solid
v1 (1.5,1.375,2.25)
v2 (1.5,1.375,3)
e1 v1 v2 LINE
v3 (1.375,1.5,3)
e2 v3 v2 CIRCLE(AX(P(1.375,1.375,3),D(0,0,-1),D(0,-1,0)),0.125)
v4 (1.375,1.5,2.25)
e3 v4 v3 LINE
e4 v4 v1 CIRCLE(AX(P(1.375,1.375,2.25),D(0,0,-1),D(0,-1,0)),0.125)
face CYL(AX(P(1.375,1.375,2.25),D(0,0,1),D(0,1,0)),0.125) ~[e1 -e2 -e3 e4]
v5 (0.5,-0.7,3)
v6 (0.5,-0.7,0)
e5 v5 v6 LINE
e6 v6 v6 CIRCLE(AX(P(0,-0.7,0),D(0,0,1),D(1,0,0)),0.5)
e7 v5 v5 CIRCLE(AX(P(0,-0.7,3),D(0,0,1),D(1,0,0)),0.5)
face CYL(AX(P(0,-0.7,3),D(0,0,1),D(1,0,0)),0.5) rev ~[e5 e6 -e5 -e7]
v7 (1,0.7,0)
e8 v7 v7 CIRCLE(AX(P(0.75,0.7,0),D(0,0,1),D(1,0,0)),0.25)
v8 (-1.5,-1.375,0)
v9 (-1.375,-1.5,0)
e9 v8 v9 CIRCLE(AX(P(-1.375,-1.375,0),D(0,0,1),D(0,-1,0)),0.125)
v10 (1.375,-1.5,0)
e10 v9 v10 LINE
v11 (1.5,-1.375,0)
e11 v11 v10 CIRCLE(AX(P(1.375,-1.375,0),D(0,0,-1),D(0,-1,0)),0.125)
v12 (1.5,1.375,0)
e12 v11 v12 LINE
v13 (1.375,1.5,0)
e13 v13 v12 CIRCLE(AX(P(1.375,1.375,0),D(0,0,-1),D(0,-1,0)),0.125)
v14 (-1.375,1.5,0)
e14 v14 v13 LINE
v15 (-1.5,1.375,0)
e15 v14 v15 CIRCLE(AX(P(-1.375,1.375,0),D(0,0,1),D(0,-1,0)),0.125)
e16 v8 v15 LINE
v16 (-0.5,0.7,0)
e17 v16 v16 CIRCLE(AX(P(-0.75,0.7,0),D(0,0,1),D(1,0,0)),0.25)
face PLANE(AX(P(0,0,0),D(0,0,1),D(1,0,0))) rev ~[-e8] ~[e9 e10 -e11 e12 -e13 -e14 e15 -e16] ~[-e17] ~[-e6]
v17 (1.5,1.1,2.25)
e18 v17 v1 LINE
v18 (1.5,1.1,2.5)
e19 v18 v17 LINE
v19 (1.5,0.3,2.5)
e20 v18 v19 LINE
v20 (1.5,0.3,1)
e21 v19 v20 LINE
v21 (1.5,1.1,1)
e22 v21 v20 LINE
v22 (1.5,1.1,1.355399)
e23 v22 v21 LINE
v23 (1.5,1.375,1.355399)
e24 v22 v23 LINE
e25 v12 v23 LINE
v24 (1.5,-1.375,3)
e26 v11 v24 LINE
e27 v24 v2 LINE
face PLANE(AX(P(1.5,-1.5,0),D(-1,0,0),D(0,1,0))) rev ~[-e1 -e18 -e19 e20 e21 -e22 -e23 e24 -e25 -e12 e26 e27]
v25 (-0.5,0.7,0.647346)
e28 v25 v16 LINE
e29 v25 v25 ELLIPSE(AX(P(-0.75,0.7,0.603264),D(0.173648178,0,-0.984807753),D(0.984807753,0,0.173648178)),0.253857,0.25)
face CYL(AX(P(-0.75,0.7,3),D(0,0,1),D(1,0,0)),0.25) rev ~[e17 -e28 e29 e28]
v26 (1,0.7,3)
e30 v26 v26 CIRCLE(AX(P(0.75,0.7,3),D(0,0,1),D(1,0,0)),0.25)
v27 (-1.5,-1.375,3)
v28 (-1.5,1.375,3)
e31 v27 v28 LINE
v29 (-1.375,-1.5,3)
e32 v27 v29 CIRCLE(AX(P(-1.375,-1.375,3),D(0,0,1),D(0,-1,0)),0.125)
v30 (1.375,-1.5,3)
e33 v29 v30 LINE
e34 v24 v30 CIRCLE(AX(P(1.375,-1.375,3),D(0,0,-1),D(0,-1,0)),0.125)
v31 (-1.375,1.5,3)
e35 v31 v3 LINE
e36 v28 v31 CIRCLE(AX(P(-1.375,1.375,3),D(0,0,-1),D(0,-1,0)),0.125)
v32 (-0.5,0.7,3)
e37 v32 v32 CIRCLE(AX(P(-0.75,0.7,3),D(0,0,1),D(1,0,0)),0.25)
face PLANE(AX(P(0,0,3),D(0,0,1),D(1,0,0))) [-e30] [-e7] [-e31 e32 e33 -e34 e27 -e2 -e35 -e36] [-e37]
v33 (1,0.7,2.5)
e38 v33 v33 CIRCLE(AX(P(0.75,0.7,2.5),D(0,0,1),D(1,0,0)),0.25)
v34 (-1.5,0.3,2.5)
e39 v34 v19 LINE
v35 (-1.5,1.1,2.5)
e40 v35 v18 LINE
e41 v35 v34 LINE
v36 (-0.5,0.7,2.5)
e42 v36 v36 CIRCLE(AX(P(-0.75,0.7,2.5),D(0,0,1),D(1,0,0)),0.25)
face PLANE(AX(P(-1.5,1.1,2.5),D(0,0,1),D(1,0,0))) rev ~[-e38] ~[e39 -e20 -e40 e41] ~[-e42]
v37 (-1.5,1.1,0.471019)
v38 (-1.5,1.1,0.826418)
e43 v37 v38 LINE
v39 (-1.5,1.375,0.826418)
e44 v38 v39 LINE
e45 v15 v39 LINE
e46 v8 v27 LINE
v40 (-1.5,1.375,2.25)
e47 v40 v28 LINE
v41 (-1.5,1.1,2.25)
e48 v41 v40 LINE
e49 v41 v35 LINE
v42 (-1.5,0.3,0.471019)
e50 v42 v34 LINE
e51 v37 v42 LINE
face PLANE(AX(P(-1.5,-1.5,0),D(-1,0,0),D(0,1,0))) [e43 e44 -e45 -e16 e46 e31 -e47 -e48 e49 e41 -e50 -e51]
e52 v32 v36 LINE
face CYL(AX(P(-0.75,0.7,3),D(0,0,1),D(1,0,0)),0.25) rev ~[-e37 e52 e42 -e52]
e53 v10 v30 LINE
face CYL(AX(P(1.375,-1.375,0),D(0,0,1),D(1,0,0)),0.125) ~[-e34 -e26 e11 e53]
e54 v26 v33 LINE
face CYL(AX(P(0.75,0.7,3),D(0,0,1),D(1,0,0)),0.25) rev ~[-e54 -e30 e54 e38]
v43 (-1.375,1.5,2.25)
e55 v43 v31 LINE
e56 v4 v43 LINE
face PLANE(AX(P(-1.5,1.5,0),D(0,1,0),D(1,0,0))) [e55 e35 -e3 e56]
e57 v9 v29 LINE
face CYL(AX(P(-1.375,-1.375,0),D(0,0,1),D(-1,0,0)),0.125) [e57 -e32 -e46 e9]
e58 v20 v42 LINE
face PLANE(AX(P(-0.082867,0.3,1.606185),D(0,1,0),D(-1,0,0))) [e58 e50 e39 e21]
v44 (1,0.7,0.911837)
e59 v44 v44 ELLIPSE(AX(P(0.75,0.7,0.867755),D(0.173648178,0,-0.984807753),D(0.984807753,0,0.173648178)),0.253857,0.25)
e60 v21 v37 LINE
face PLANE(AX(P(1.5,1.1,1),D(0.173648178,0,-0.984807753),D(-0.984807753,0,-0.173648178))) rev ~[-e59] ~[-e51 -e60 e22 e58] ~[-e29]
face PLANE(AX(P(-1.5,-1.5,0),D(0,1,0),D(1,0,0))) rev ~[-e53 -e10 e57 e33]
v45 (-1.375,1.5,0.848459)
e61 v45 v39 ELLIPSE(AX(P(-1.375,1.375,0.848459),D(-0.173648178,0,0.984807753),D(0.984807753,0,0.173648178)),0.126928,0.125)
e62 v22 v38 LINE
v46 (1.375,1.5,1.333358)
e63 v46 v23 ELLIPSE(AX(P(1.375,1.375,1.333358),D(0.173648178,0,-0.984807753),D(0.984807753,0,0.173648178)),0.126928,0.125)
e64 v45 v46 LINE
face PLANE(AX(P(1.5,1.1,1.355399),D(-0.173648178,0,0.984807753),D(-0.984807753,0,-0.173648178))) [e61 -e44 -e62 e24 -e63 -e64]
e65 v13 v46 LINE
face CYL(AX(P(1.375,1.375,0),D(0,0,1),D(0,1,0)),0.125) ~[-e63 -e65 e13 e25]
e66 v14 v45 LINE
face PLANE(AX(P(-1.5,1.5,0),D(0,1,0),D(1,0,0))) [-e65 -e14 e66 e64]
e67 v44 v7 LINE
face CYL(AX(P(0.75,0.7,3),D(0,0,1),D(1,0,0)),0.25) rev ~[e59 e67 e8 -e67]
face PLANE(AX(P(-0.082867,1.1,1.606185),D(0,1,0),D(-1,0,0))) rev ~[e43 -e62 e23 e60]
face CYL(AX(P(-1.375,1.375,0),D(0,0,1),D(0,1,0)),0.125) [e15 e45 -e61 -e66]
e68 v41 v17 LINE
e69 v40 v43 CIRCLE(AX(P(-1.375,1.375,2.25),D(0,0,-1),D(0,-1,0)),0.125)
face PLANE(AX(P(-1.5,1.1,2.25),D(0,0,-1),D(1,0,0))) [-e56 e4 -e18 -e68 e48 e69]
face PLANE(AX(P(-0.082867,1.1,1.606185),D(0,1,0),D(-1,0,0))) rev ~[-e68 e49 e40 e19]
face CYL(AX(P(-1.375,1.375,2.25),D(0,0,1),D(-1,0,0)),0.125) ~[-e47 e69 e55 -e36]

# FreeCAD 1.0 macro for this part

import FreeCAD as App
import Part
import Sketcher

V = App.Vector
Q = App.Units.Quantity


def edges_at(feature, points):
    """Names of the edges that pass closest to the given points."""
    edges = feature.Shape.Edges
    near = lambda p: min(range(len(edges)), key=lambda i: edges[i].distToShape(Part.Vertex(*p))[0])
    return sorted({f"Edge{near(p) + 1}" for p in points})


def add_polygon(sketch, points):
    """Adds a closed chain of lines whose ends are joined by coincident constraints."""
    first, n = sketch.GeometryCount, len(points)
    for a, b in zip(points, points[1:] + points[:1]):
        sketch.addGeometry(Part.LineSegment(App.Vector(*a, 0), App.Vector(*b, 0)), False)
    for i in range(n):
        sketch.addConstraint(Sketcher.Constraint("Coincident", first + i, 2, first + (i + 1) % n, 1))

doc = App.newDocument("Part")
params = doc.addObject("Spreadsheet::Sheet", "Params")
for row, (alias, value) in enumerate([
    ("sketch1_width", "3 mm"),
    ("pad1_length", "3 mm"),
    ("sketch2_diameter", "1 mm"),
    ("pocket1_length", "25 mm"),
    ("sketch3_width", "3 mm"),
    ("sketch3_height", "1.5 mm"),
    ("pocket2_length", "0.8 mm"),
    ("sketch4_width", "3 mm"),
    ("pocket3_length", "1.05 mm"),
    ("fillet_radius", "0.125 mm"),
    ("fillet2_radius", "0.125 mm"),
    ("sketch5_diameter", "0.5 mm"),
    ("pocket4_length", "25 mm"),
], start=1):
    params.set(f"A{row}", alias)
    params.set(f"B{row}", "=" + value)
    params.setAlias(f"B{row}", alias)

body = doc.addObject("PartDesign::Body", "Body")

# Sketch on XY plane
sketch1 = doc.addObject("Sketcher::SketchObject", "Sketch")
body.addObject(sketch1)
sketch1.AttachmentSupport = (doc.XY_Plane, [""])
sketch1.MapMode = "FlatFace"
add_polygon(sketch1, [(-1.5, 1.5), (-1.5, -1.5), (1.5, -1.5), (1.5, 1.5)])  # lines 0-3
sketch1.addConstraint([
    Sketcher.Constraint("Vertical", 0),
    Sketcher.Constraint("Horizontal", 1),
    Sketcher.Constraint("Vertical", 2),
    Sketcher.Constraint("Horizontal", 3),
    Sketcher.Constraint("Symmetric", 0, 2, 2, 2, -1, 1),
    Sketcher.Constraint("Equal", 3, 0),
    Sketcher.Constraint("DistanceX", 1, 1, 1, 2, 3.0),
])
sketch1.setExpression("Constraints[10]", "Params.sketch1_width")
pad1 = doc.addObject("PartDesign::Pad", "Pad")
body.addObject(pad1)
pad1.Profile = sketch1
pad1.setExpression("Length", "Params.pad1_length")

# Sketch on XY plane
sketch2 = doc.addObject("Sketcher::SketchObject", "Sketch001")
body.addObject(sketch2)
sketch2.AttachmentSupport = (doc.XY_Plane, [""])
sketch2.MapMode = "FlatFace"
sketch2.AttachmentOffset = App.Placement(V(0, 0, 3), App.Rotation())
sketch2.addGeometry(Part.Circle(V(0, -0.7, 0), V(0, 0, 1), 0.5), False)
sketch2.addConstraint([
    Sketcher.Constraint("PointOnObject", 0, 3, -2),
    Sketcher.Constraint("Diameter", 0, 1.0),
    Sketcher.Constraint("DistanceY", 0, 3, -1, 1, 0.7),
])
sketch2.setExpression("Constraints[1]", "Params.sketch2_diameter")
pocket1 = doc.addObject("PartDesign::Pocket", "Pocket")
body.addObject(pocket1)
pocket1.Profile = sketch2
pocket1.setExpression("Length", "Params.pocket1_length")

# Sketch on XZ plane
sketch3 = doc.addObject("Sketcher::SketchObject", "Sketch002")
body.addObject(sketch3)
sketch3.AttachmentSupport = (doc.XZ_Plane, [""])
sketch3.MapMode = "FlatFace"
sketch3.AttachmentOffset = App.Placement(V(0, 0, -1.1), App.Rotation())
add_polygon(sketch3, [(1.5, 2.5), (1.5, 1), (-1.5, 0.5), (-1.5, 2.5)])  # lines 0-3
sketch3.addConstraint([
    Sketcher.Constraint("Vertical", 0),
    Sketcher.Constraint("Vertical", 2),
    Sketcher.Constraint("Horizontal", 3),
    Sketcher.Constraint("DistanceX", 3, 1, 3, 2, 3.0),
    Sketcher.Constraint("Angle", 1, Q("-170 deg")),
    Sketcher.Constraint("DistanceY", 0, 2, 0, 1, 1.5),
    Sketcher.Constraint("DistanceY", -1, 1, 0, 2, 1.0),
    Sketcher.Constraint("DistanceX", -1, 1, 0, 2, 1.5),
])
sketch3.setExpression("Constraints[7]", "Params.sketch3_width")
sketch3.setExpression("Constraints[9]", "Params.sketch3_height")
pocket2 = doc.addObject("PartDesign::Pocket", "Pocket001")
body.addObject(pocket2)
pocket2.Profile = sketch3
pocket2.setExpression("Length", "Params.pocket2_length")
pocket2.Reversed = True

# Sketch on XZ plane
sketch4 = doc.addObject("Sketcher::SketchObject", "Sketch003")
body.addObject(sketch4)
sketch4.AttachmentSupport = (doc.XZ_Plane, [""])
sketch4.MapMode = "FlatFace"
sketch4.AttachmentOffset = App.Placement(V(0, 0, -1.1), App.Rotation())
add_polygon(sketch4, [(1.5, 2.2), (1.5, 1.4), (-1.5, 0.8), (-1.5, 2.2)])  # lines 0-3
sketch4.addConstraint([
    Sketcher.Constraint("Vertical", 0),
    Sketcher.Constraint("Vertical", 2),
    Sketcher.Constraint("Horizontal", 3),
    Sketcher.Constraint("DistanceX", 3, 1, 3, 2, 3.0),
    Sketcher.Constraint("Angle", 1, Q("-170 deg")),
    Sketcher.Constraint("DistanceX", -1, 1, 0, 2, 1.5),
    Sketcher.Constraint("DistanceY", -1, 1, 2, 2, 2.25),
    Sketcher.Constraint("DistanceY", 0, 2, 0, 1, 0.894601),
])
sketch4.setExpression("Constraints[7]", "Params.sketch4_width")
pocket3 = doc.addObject("PartDesign::Pocket", "Pocket002")
body.addObject(pocket3)
pocket3.Profile = sketch4
pocket3.setExpression("Length", "Params.pocket3_length")
doc.recompute()

fillet = doc.addObject("PartDesign::Fillet", "Fillet")
body.addObject(fillet)
fillet.Base = (pocket3, edges_at(pocket3, [(1.5, 1.5, 0.678), (1.5, 1.5, 2.625)]))
fillet.setExpression("Radius", "Params.fillet_radius")
doc.recompute()

fillet2 = doc.addObject("PartDesign::Fillet", "Fillet001")
body.addObject(fillet2)
fillet2.Base = (fillet, edges_at(fillet, [
    (-1.5, 1.5, 2.625),
    (-1.5, 1.5, 0.413),
    (-1.5, -1.5, 1.5),
    (1.5, -1.5, 1.5),
]))
fillet2.setExpression("Radius", "Params.fillet2_radius")

# Sketch on XY plane
sketch5 = doc.addObject("Sketcher::SketchObject", "Sketch004")
body.addObject(sketch5)
sketch5.AttachmentSupport = (doc.XY_Plane, [""])
sketch5.MapMode = "FlatFace"
sketch5.AttachmentOffset = App.Placement(V(0, 0, 3), App.Rotation())
sketch5.addGeometry([
    Part.Circle(V(0.75, 0.7, 0), V(0, 0, 1), 0.25),
    Part.Circle(V(-0.75, 0.7, 0), V(0, 0, 1), 0.25),
], False)
sketch5.addConstraint([
    Sketcher.Constraint("Equal", 0, 1),
    Sketcher.Constraint("Symmetric", 0, 3, 1, 3, -2),
    Sketcher.Constraint("Diameter", 0, 0.5),
    Sketcher.Constraint("DistanceY", -1, 1, 0, 3, 0.7),
    Sketcher.Constraint("DistanceX", 1, 3, 0, 3, 1.5),
])
sketch5.setExpression("Constraints[2]", "Params.sketch5_diameter")
pocket4 = doc.addObject("PartDesign::Pocket", "Pocket003")
body.addObject(pocket4)
pocket4.Profile = sketch5
pocket4.setExpression("Length", "Params.pocket4_length")

doc.recompute()
